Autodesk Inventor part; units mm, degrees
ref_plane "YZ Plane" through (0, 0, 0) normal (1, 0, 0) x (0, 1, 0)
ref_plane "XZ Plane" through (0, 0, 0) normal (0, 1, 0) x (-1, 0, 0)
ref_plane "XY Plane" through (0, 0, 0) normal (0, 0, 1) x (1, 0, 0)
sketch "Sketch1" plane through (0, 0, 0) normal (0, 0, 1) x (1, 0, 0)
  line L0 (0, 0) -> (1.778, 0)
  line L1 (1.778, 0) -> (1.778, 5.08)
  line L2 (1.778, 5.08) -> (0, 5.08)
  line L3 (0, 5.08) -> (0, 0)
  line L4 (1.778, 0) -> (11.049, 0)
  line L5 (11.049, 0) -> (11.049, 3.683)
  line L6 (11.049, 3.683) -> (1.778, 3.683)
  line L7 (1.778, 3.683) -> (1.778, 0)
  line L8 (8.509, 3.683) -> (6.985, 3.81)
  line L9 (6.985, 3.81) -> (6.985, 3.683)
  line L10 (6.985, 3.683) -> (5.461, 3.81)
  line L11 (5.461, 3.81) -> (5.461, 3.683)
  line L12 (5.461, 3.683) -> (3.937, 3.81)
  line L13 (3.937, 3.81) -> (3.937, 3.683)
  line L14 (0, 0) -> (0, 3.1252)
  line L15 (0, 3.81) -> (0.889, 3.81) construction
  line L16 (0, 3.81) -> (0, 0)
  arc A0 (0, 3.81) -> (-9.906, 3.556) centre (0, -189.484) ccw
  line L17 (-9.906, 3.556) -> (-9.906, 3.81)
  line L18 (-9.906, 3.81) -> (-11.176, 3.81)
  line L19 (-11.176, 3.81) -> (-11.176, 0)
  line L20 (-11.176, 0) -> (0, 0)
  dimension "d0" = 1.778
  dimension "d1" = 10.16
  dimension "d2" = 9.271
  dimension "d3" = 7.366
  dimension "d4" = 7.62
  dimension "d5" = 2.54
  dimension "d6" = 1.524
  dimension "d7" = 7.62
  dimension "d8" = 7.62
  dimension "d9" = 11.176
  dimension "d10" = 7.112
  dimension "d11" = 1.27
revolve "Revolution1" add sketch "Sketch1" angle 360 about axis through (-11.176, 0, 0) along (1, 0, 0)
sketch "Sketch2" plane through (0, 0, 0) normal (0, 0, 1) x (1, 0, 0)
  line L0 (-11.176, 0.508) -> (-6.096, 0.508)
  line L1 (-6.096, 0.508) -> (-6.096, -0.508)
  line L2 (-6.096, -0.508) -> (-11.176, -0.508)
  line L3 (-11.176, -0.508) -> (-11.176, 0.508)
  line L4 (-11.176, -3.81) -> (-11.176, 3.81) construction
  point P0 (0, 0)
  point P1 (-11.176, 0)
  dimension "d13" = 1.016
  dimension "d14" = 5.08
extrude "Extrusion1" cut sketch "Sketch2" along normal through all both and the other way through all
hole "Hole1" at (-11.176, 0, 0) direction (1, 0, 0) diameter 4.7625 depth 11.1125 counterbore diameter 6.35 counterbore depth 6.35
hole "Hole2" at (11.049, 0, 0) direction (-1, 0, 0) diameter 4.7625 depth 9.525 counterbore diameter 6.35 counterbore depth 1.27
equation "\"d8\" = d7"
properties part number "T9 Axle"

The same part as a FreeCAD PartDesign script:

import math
import FreeCAD as App
import Part
import Sketcher
from FreeCAD import Vector
Q = App.Units.Quantity

doc = App.newDocument("Part")
body = doc.addObject("PartDesign::Body", "Body")

# Sketch on XY plane
sketch1 = doc.addObject("Sketcher::SketchObject", "Sketch")
body.addObject(sketch1)
sketch1.AttachmentSupport = (doc.XY_Plane, [""])
sketch1.MapMode = "FlatFace"
sketch1.addGeometry(Part.LineSegment(Vector(0, 5.08, 0), Vector(0, 3.81, 0)), False)
sketch1.addGeometry(Part.ArcOfCircle(Part.Circle(Vector(0, -189.48, 0), Vector(0, 0, 1), 193.29), math.radians(90), math.radians(92.94)), False)
sketch1.addGeometry(Part.LineSegment(Vector(-9.91, 3.56, 0), Vector(-9.91, 3.81, 0)), False)
sketch1.addGeometry(Part.LineSegment(Vector(-9.91, 3.81, 0), Vector(-11.18, 3.81, 0)), False)
sketch1.addGeometry(Part.LineSegment(Vector(-11.18, 3.81, 0), Vector(-11.18, 0, 0)), False)
sketch1.addGeometry(Part.LineSegment(Vector(-11.18, 0, 0), Vector(11.05, 0, 0)), False)
sketch1.addGeometry(Part.LineSegment(Vector(11.05, 0, 0), Vector(11.05, 3.68, 0)), False)
sketch1.addGeometry(Part.LineSegment(Vector(11.05, 3.68, 0), Vector(8.51, 3.68, 0)), False)
sketch1.addGeometry(Part.LineSegment(Vector(8.51, 3.68, 0), Vector(6.99, 3.81, 0)), False)
sketch1.addGeometry(Part.LineSegment(Vector(6.99, 3.81, 0), Vector(6.99, 3.68, 0)), False)
sketch1.addGeometry(Part.LineSegment(Vector(6.99, 3.68, 0), Vector(5.46, 3.81, 0)), False)
sketch1.addGeometry(Part.LineSegment(Vector(5.46, 3.81, 0), Vector(5.46, 3.68, 0)), False)
sketch1.addGeometry(Part.LineSegment(Vector(5.46, 3.68, 0), Vector(3.94, 3.81, 0)), False)
sketch1.addGeometry(Part.LineSegment(Vector(3.94, 3.81, 0), Vector(3.94, 3.68, 0)), False)
sketch1.addGeometry(Part.LineSegment(Vector(3.94, 3.68, 0), Vector(1.78, 3.68, 0)), False)
sketch1.addGeometry(Part.LineSegment(Vector(1.78, 3.68, 0), Vector(1.78, 5.08, 0)), False)
sketch1.addGeometry(Part.LineSegment(Vector(1.78, 5.08, 0), Vector(0, 5.08, 0)), False)
sketch1.addConstraint(Sketcher.Constraint("Coincident", 0, 2, 1, 1))
sketch1.addConstraint(Sketcher.Constraint("Coincident", 1, 2, 2, 1))
sketch1.addConstraint(Sketcher.Constraint("Coincident", 2, 2, 3, 1))
sketch1.addConstraint(Sketcher.Constraint("Coincident", 3, 2, 4, 1))
sketch1.addConstraint(Sketcher.Constraint("Coincident", 4, 2, 5, 1))
sketch1.addConstraint(Sketcher.Constraint("Coincident", 5, 2, 6, 1))
sketch1.addConstraint(Sketcher.Constraint("Coincident", 6, 2, 7, 1))
sketch1.addConstraint(Sketcher.Constraint("Coincident", 7, 2, 8, 1))
sketch1.addConstraint(Sketcher.Constraint("Coincident", 8, 2, 9, 1))
sketch1.addConstraint(Sketcher.Constraint("Coincident", 9, 2, 10, 1))
sketch1.addConstraint(Sketcher.Constraint("Coincident", 10, 2, 11, 1))
sketch1.addConstraint(Sketcher.Constraint("Coincident", 11, 2, 12, 1))
sketch1.addConstraint(Sketcher.Constraint("Coincident", 12, 2, 13, 1))
sketch1.addConstraint(Sketcher.Constraint("Coincident", 13, 2, 14, 1))
sketch1.addConstraint(Sketcher.Constraint("Coincident", 14, 2, 15, 1))
sketch1.addConstraint(Sketcher.Constraint("Coincident", 15, 2, 16, 1))
sketch1.addConstraint(Sketcher.Constraint("Coincident", 16, 2, 0, 1))
sketch1.addConstraint(Sketcher.Constraint("Vertical", 0))
sketch1.addConstraint(Sketcher.Constraint("Vertical", 2))
sketch1.addConstraint(Sketcher.Constraint("Horizontal", 3))
sketch1.addConstraint(Sketcher.Constraint("Vertical", 4))
sketch1.addConstraint(Sketcher.Constraint("Horizontal", 5))
sketch1.addConstraint(Sketcher.Constraint("Vertical", 6))
sketch1.addConstraint(Sketcher.Constraint("Horizontal", 7))
sketch1.addConstraint(Sketcher.Constraint("Vertical", 9))
sketch1.addConstraint(Sketcher.Constraint("Vertical", 11))
sketch1.addConstraint(Sketcher.Constraint("Vertical", 13))
sketch1.addConstraint(Sketcher.Constraint("Horizontal", 14))
sketch1.addConstraint(Sketcher.Constraint("Vertical", 15))
sketch1.addConstraint(Sketcher.Constraint("Horizontal", 16))
sketch1.addConstraint(Sketcher.Constraint("PointOnObject", 1, 3, -2))
sketch1.addConstraint(Sketcher.Constraint("PointOnObject", 0, 2, -2))
sketch1.addConstraint(Sketcher.Constraint("PointOnObject", 4, 2, -1))
sketch1.addConstraint(Sketcher.Constraint("Parallel", 8, 10))
sketch1.addConstraint(Sketcher.Constraint("Parallel", 10, 12))
sketch1.addConstraint(Sketcher.Constraint("Horizontal", 0, 2, 2, 2))
sketch1.addConstraint(Sketcher.Constraint("Horizontal", 3, 2, 8, 2))
sketch1.addConstraint(Sketcher.Constraint("Horizontal", 7, 2, 9, 2))
sketch1.addConstraint(Sketcher.Constraint("Horizontal", 8, 2, 10, 2))
sketch1.addConstraint(Sketcher.Constraint("Horizontal", 9, 2, 11, 2))
sketch1.addConstraint(Sketcher.Constraint("Horizontal", 10, 2, 12, 2))
sketch1.addConstraint(Sketcher.Constraint("Horizontal", 11, 2, 13, 2))
sketch1.addConstraint(Sketcher.Constraint("Equal", 3, 0))
sketch1.addConstraint(Sketcher.Constraint("DistanceX", 7, 2, 7, 1, Q("0.1 in")))
sketch1.addConstraint(Sketcher.Constraint("DistanceX", 3, 2, 3, 1, Q("0.05 in")))
sketch1.addConstraint(Sketcher.Constraint("DistanceX", 16, 2, 16, 1, Q("0.07 in")))
sketch1.addConstraint(Sketcher.Constraint("DistanceX", 3, 2, -1, 1, Q("0.44 in")))
sketch1.addConstraint(Sketcher.Constraint("Radius", 1, Q("7.61 in")))
sketch1.addConstraint(Sketcher.Constraint("DistanceX", 8, 2, 7, 2, Q("0.06 in")))
sketch1.addConstraint(Sketcher.Constraint("DistanceY", 4, 2, 4, 1, Q("0.15 in")))
sketch1.addConstraint(Sketcher.Constraint("DistanceX", 5, 1, 5, 2, Q("0.875 in")))
sketch1.addConstraint(Sketcher.Constraint("DistanceY", 6, 1, 6, 2, Q("0.145 in")))
revolution = doc.addObject("PartDesign::Revolution", "Revolution")
body.addObject(revolution)
revolution.Profile = sketch1
revolution.ReferenceAxis = (sketch1, ["H_Axis"])
revolution.Angle = 360

# Sketch on XY plane
sketch2 = doc.addObject("Sketcher::SketchObject", "Sketch001")
body.addObject(sketch2)
sketch2.AttachmentSupport = (doc.XY_Plane, [""])
sketch2.MapMode = "FlatFace"
sketch2.addGeometry(Part.LineSegment(Vector(-6.1, 0.5, 0), Vector(-11.2, 0.5, 0)), False)
sketch2.addGeometry(Part.LineSegment(Vector(-11.2, 0.5, 0), Vector(-11.2, -0.5, 0)), False)
sketch2.addGeometry(Part.LineSegment(Vector(-11.2, -0.5, 0), Vector(-6.1, -0.5, 0)), False)
sketch2.addGeometry(Part.LineSegment(Vector(-6.1, -0.5, 0), Vector(-6.1, 0.5, 0)), False)
sketch2.addConstraint(Sketcher.Constraint("Coincident", 0, 2, 1, 1))
sketch2.addConstraint(Sketcher.Constraint("Coincident", 1, 2, 2, 1))
sketch2.addConstraint(Sketcher.Constraint("Coincident", 2, 2, 3, 1))
sketch2.addConstraint(Sketcher.Constraint("Coincident", 3, 2, 0, 1))
sketch2.addConstraint(Sketcher.Constraint("Horizontal", 0))
sketch2.addConstraint(Sketcher.Constraint("Vertical", 1))
sketch2.addConstraint(Sketcher.Constraint("Horizontal", 2))
sketch2.addConstraint(Sketcher.Constraint("Vertical", 3))
sketch2.addConstraint(Sketcher.Constraint("DistanceX", 0, 2, 0, 1, Q("0.2 in")))
sketch2.addConstraint(Sketcher.Constraint("DistanceY", 1, 2, 1, 1, Q("0.04 in")))
sketch2.addConstraint(Sketcher.Constraint("DistanceX", 0, 2, -1, 1, Q("0.44 in")))
sketch2.addConstraint(Sketcher.Constraint("DistanceY", -1, 1, 0, 2, Q("0.02 in")))
pocket1 = doc.addObject("PartDesign::Pocket", "Pocket")
body.addObject(pocket1)
pocket1.Profile = sketch2
pocket1.Type = "ThroughAll"
pocket1.Midplane = True

# Sketch on YZ plane
sketch3 = doc.addObject("Sketcher::SketchObject", "Sketch002")
body.addObject(sketch3)
sketch3.AttachmentSupport = (doc.YZ_Plane, [""])
sketch3.MapMode = "FlatFace"
sketch3.AttachmentOffset = App.Placement(Vector(0, 0, -0.44 * 25.4), App.Rotation())
sketch3.addGeometry(Part.Circle(Vector(0, 0, 0), Vector(0, 0, 1), 2.4), False)
sketch3.addConstraint(Sketcher.Constraint("Coincident", 0, 3, -1, 1))
sketch3.addConstraint(Sketcher.Constraint("Diameter", 0, Q("0.1875 in")))
doc.recompute()
hole = doc.addObject("PartDesign::Hole", "Hole")
body.addObject(hole)
hole.Profile = sketch3
hole.ThreadType = "None"
hole.Diameter = Q("0.1875 in")
hole.DepthType = "Dimension"
hole.Depth = Q("0.4375 in")
hole.DrillPoint = "Flat"
hole.HoleCutType = "Counterbore"
hole.HoleCutDiameter = Q("0.25 in")
hole.HoleCutDepth = Q("0.25 in")
hole.Reversed = True

# Sketch on YZ plane
sketch4 = doc.addObject("Sketcher::SketchObject", "Sketch003")
body.addObject(sketch4)
sketch4.AttachmentSupport = (doc.YZ_Plane, [""])
sketch4.MapMode = "FlatFace"
sketch4.AttachmentOffset = App.Placement(Vector(0, 0, 0.435 * 25.4), App.Rotation())
sketch4.addGeometry(Part.Circle(Vector(0, 0, 0), Vector(0, 0, 1), 2.4), False)
sketch4.addConstraint(Sketcher.Constraint("Coincident", 0, 3, -1, 1))
sketch4.addConstraint(Sketcher.Constraint("Diameter", 0, Q("0.1875 in")))
doc.recompute()
hole2 = doc.addObject("PartDesign::Hole", "Hole001")
body.addObject(hole2)
hole2.Profile = sketch4
hole2.ThreadType = "None"
hole2.Diameter = Q("0.1875 in")
hole2.DepthType = "Dimension"
hole2.Depth = Q("0.375 in")
hole2.DrillPoint = "Flat"
hole2.HoleCutType = "Counterbore"
hole2.HoleCutDiameter = Q("0.25 in")
hole2.HoleCutDepth = Q("0.05 in")

doc.recompute()
